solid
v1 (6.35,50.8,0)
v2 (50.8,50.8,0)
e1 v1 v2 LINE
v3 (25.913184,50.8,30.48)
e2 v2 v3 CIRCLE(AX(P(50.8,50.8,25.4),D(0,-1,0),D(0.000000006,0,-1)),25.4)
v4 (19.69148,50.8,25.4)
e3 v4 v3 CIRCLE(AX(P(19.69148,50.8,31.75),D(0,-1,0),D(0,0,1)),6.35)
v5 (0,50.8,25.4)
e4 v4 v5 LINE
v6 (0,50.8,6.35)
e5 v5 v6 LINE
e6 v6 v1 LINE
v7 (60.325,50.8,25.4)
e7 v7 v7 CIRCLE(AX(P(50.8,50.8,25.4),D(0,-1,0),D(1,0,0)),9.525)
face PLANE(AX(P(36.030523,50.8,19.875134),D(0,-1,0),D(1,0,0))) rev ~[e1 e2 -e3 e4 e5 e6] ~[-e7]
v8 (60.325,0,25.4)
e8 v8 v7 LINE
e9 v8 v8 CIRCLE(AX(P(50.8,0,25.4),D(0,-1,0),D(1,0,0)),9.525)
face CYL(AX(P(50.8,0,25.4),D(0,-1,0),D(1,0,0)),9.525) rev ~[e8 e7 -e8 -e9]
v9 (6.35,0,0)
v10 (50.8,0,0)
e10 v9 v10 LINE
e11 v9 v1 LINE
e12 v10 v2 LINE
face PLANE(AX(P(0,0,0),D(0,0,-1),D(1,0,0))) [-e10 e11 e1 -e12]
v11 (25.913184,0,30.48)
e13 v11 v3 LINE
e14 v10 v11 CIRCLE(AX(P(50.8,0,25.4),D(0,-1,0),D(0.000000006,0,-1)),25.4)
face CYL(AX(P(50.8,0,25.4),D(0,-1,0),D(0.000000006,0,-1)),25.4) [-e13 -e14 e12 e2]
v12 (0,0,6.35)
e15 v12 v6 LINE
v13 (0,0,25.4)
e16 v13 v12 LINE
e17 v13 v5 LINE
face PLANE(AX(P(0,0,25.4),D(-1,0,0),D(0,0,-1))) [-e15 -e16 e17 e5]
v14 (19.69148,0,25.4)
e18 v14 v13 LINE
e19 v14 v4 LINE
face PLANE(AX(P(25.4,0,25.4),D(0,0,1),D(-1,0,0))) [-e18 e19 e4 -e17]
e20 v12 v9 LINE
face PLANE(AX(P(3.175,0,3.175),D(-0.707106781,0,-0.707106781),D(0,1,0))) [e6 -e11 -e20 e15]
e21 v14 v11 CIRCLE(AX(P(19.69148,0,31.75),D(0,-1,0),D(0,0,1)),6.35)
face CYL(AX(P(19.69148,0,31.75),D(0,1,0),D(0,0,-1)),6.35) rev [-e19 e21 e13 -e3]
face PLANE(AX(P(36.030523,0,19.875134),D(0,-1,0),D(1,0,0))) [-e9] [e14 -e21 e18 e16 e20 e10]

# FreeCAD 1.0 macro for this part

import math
import FreeCAD as App
import Part
import Sketcher
from FreeCAD import Vector
Q = App.Units.Quantity


def edges_at(feature, points):
    """Names of the edges that pass closest to the given points."""
    edges = feature.Shape.Edges
    near = lambda p: min(range(len(edges)), key=lambda i: edges[i].distToShape(Part.Vertex(*p))[0])
    return sorted({f"Edge{near(p) + 1}" for p in points})

doc = App.newDocument("Part")
params = doc.addObject("Spreadsheet::Sheet", "Params")
for row, (alias, value) in enumerate([
    ("sketch1_radius", "1 in"),
    ("sketch1_diameter", "0.75 in"),
    ("pad1_length", "2 in"),
    ("fillet_radius", "0.25 in"),
    ("chamfer_size", "0.25 in"),
], start=1):
    params.set(f"A{row}", alias)
    params.set(f"B{row}", "=" + value)
    params.setAlias(f"B{row}", alias)

body = doc.addObject("PartDesign::Body", "Body")

sketch1 = body.newObject("Sketcher::SketchObject", "Sketch")
sketch1.AttachmentSupport = (doc.getObject("XZ_Plane"), [""])
sketch1.MapMode = "FlatFace"
sketch1.addGeometry(Part.LineSegment(Vector(0, 25, 0), Vector(0, 0, 0)), False)
sketch1.addGeometry(Part.LineSegment(Vector(0, 0, 0), Vector(51, 0, 0)), False)
sketch1.addGeometry(Part.ArcOfCircle(Part.Circle(Vector(51, 25, 0), Vector(0, 0, 1), 25), math.radians(-90), math.radians(180)), False)
sketch1.addGeometry(Part.LineSegment(Vector(25, 25, 0), Vector(0, 25, 0)), False)
sketch1.addGeometry(Part.Circle(Vector(51, 25, 0), Vector(0, 0, 1), 10), False)
sketch1.addConstraint(Sketcher.Constraint("Coincident", 0, 2, 1, 1))
sketch1.addConstraint(Sketcher.Constraint("Tangent", 1, 2, 2, 1))
sketch1.addConstraint(Sketcher.Constraint("Coincident", 2, 2, 3, 1))
sketch1.addConstraint(Sketcher.Constraint("Coincident", 3, 2, 0, 1))
sketch1.addConstraint(Sketcher.Constraint("Vertical", 0))
sketch1.addConstraint(Sketcher.Constraint("Horizontal", 1))
sketch1.addConstraint(Sketcher.Constraint("Horizontal", 3))
sketch1.addConstraint(Sketcher.Constraint("Coincident", 0, 2, -1, 1))
sketch1.addConstraint(Sketcher.Constraint("Coincident", 4, 3, 2, 3))
sketch1.addConstraint(Sketcher.Constraint("Horizontal", 4, 3, 2, 2))
sketch1.addConstraint(Sketcher.Constraint("Equal", 3, 0))
sketch1.addConstraint(Sketcher.Constraint("Radius", 2, Q("1 in")))
sketch1.addConstraint(Sketcher.Constraint("Diameter", 4, Q("0.75 in")))
sketch1.setExpression("Constraints[11]", "Params.sketch1_radius")
sketch1.setExpression("Constraints[12]", "Params.sketch1_diameter")
pad1 = body.newObject("PartDesign::Pad", "Pad")
pad1.Profile = sketch1
pad1.setExpression("Length", "Params.pad1_length")
pad1.Reversed = True
doc.recompute()

fillet = body.newObject("PartDesign::Fillet", "Fillet")
fillet.Base = (pad1, edges_at(pad1, [(25.4, 25.4, 25.4)]))
fillet.setExpression("Radius", "Params.fillet_radius")
doc.recompute()

chamfer = body.newObject("PartDesign::Chamfer", "Chamfer")
chamfer.Base = (fillet, edges_at(fillet, [(0, 25.4, 0)]))
chamfer.setExpression("Size", "Params.chamfer_size")

doc.recompute()
